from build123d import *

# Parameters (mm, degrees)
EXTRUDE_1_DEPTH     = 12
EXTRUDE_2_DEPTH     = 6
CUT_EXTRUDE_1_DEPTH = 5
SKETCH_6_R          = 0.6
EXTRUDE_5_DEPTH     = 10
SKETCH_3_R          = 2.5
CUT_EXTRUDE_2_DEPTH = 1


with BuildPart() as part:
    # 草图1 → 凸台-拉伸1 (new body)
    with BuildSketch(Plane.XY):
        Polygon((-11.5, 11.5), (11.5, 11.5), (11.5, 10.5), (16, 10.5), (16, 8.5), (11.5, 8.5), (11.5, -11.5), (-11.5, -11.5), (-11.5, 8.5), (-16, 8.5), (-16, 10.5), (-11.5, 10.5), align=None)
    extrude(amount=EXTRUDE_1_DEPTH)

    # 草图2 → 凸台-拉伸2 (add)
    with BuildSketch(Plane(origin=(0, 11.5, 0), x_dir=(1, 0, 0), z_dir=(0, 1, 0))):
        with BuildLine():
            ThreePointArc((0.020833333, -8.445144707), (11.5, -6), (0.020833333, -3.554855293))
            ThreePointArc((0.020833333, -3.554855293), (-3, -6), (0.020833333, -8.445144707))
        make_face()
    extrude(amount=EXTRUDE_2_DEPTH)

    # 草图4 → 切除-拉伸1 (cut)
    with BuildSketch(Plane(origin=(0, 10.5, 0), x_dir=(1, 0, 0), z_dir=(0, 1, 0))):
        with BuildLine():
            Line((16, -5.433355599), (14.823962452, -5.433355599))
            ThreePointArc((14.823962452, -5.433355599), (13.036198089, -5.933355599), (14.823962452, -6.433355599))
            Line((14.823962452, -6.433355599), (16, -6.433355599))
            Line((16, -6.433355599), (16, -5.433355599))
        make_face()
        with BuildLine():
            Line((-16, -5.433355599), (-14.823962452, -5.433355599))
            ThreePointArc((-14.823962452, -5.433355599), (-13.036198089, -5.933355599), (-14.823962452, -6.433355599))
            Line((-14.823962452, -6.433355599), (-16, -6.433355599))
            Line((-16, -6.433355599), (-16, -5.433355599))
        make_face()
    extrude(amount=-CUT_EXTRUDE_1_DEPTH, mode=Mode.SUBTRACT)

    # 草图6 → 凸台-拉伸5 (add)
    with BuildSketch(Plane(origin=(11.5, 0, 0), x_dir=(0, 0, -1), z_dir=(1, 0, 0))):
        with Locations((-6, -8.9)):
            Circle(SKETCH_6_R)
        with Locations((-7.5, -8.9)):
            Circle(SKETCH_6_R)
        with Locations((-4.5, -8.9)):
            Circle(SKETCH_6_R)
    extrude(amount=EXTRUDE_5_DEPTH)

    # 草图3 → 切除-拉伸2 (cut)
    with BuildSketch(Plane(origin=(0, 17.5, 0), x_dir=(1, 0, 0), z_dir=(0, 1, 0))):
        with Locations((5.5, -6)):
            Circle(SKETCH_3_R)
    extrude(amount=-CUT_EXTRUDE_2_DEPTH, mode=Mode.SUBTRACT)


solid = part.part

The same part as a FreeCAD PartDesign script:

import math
import FreeCAD as App
import Part
import Sketcher

V = App.Vector


def add_polygon(sketch, points):
    """Adds a closed chain of lines whose ends are joined by coincident constraints."""
    first, n = sketch.GeometryCount, len(points)
    for a, b in zip(points, points[1:] + points[:1]):
        sketch.addGeometry(Part.LineSegment(App.Vector(*a, 0), App.Vector(*b, 0)), False)
    for i in range(n):
        sketch.addConstraint(Sketcher.Constraint("Coincident", first + i, 2, first + (i + 1) % n, 1))

doc = App.newDocument("Part")
params = doc.addObject("Spreadsheet::Sheet", "Params")
for row, (alias, value) in enumerate([
    ("sketch1_width", "23 mm"),
    ("sketch1_height", "1 mm"),
    ("sketch1_height2", "2 mm"),
    ("sketch1_height3", "20 mm"),
    ("sketch1_width2", "4.5 mm"),
    ("pad1_length", "12 mm"),
    ("sketch2_radius", "6 mm"),
    ("sketch2_radius2", "2.5 mm"),
    ("pad2_length", "6 mm"),
    ("sketch3_height", "1 mm"),
    ("pocket1_length", "5 mm"),
    ("sketch4_diameter", "1.2 mm"),
    ("pad3_length", "10 mm"),
    ("sketch5_diameter", "5 mm"),
    ("pocket2_length", "1 mm"),
], start=1):
    params.set(f"A{row}", alias)
    params.set(f"B{row}", "=" + value)
    params.setAlias(f"B{row}", alias)

body = doc.addObject("PartDesign::Body", "Body")

# Sketch on XY plane
sketch1 = body.newObject("Sketcher::SketchObject", "Sketch")
sketch1.AttachmentSupport = (doc.getObject("XY_Plane"), [""])
sketch1.MapMode = "FlatFace"
add_polygon(sketch1, [(11.5, 11.5), (-11.5, 11.5), (-11.5, 10.5), (-16, 10.5), (-16, 8.5), (-11.5, 8.5), (-11.5, -11.5), (11.5, -11.5), (11.5, 8.5), (16, 8.5), (16, 10.5), (11.5, 10.5)])  # lines 0-11
sketch1.addConstraint([
    Sketcher.Constraint("Horizontal", 0),
    Sketcher.Constraint("Vertical", 1),
    Sketcher.Constraint("Horizontal", 2),
    Sketcher.Constraint("Vertical", 3),
    Sketcher.Constraint("Horizontal", 4),
    Sketcher.Constraint("Vertical", 5),
    Sketcher.Constraint("Horizontal", 6),
    Sketcher.Constraint("Vertical", 7),
    Sketcher.Constraint("Horizontal", 8),
    Sketcher.Constraint("Vertical", 9),
    Sketcher.Constraint("Horizontal", 10),
    Sketcher.Constraint("Vertical", 11),
    Sketcher.Constraint("Symmetric", 0, 2, 6, 2, -1, 1),
    Sketcher.Constraint("Symmetric", 4, 2, 7, 2, -2),
    Sketcher.Constraint("Symmetric", 2, 2, 9, 2, -2),
    Sketcher.Constraint("Vertical", 7, 2, 10, 2),
    Sketcher.Constraint("DistanceX", 0, 2, 0, 1, 23.0),
    Sketcher.Constraint("DistanceY", 1, 2, 1, 1, 1.0),
    Sketcher.Constraint("DistanceY", 3, 2, 3, 1, 2.0),
    Sketcher.Constraint("DistanceY", 5, 2, 5, 1, 20.0),
    Sketcher.Constraint("DistanceX", 2, 2, 2, 1, 4.5),
])
sketch1.setExpression("Constraints[28]", "Params.sketch1_width")
sketch1.setExpression("Constraints[29]", "Params.sketch1_height")
sketch1.setExpression("Constraints[30]", "Params.sketch1_height2")
sketch1.setExpression("Constraints[31]", "Params.sketch1_height3")
sketch1.setExpression("Constraints[32]", "Params.sketch1_width2")
pad1 = body.newObject("PartDesign::Pad", "Pad")
pad1.Profile = sketch1
pad1.setExpression("Length", "Params.pad1_length")

# Sketch on XZ plane
sketch2 = body.newObject("Sketcher::SketchObject", "Sketch001")
sketch2.AttachmentSupport = (doc.getObject("XZ_Plane"), [""])
sketch2.MapMode = "FlatFace"
sketch2.AttachmentOffset = App.Placement(V(0, 0, -11.5), App.Rotation())
sketch2.addGeometry([
    Part.ArcOfCircle(Part.Circle(V(5.5, 6, 0), V(0, 0, 1), 6), math.radians(-155.950602), math.radians(155.950602)),
    Part.ArcOfCircle(Part.Circle(V(-0.5, 6, 0), V(0, 0, 1), 2.5), math.radians(77.975301), math.radians(282.024699)),
], False)
sketch2.addConstraint([
    Sketcher.Constraint("Coincident", 0, 1, 1, 2),
    Sketcher.Constraint("Coincident", 1, 1, 0, 2),
    Sketcher.Constraint("Horizontal", 0, 3, 1, 3),
    Sketcher.Constraint("Radius", 0, 6.0),
    Sketcher.Constraint("Radius", 1, 2.5),
    Sketcher.Constraint("DistanceY", -1, 1, 0, 3, 6.0),
    Sketcher.Constraint("DistanceX", 1, 3, 0, 3, 6.0),
    Sketcher.Constraint("DistanceX", -1, 1, 0, 3, 5.5),
])
sketch2.setExpression("Constraints[3]", "Params.sketch2_radius")
sketch2.setExpression("Constraints[4]", "Params.sketch2_radius2")
pad2 = body.newObject("PartDesign::Pad", "Pad001")
pad2.Profile = sketch2
pad2.setExpression("Length", "Params.pad2_length")
pad2.Reversed = True

# Sketch on XZ plane
sketch3 = body.newObject("Sketcher::SketchObject", "Sketch002")
sketch3.AttachmentSupport = (doc.getObject("XZ_Plane"), [""])
sketch3.MapMode = "FlatFace"
sketch3.AttachmentOffset = App.Placement(V(0, 0, -10.5), App.Rotation())
sketch3.addGeometry([
    Part.LineSegment(V(16, 5.433356, 0), V(14.823962, 5.433356, 0)),  # 0
    Part.ArcOfCircle(Part.Circle(V(14, 5.933356, 0), V(0, 0, 1), 0.963802), math.radians(31.250372), math.radians(328.749628)),  # 1
    Part.LineSegment(V(14.823962, 6.433356, 0), V(16, 6.433356, 0)),  # 2
    Part.LineSegment(V(16, 6.433356, 0), V(16, 5.433356, 0)),  # 3
    Part.LineSegment(V(-14.823962, 5.433356, 0), V(-16, 5.433356, 0)),  # 4
    Part.LineSegment(V(-16, 5.433356, 0), V(-16, 6.433356, 0)),  # 5
    Part.LineSegment(V(-16, 6.433356, 0), V(-14.823962, 6.433356, 0)),  # 6
    Part.ArcOfCircle(Part.Circle(V(-14, 5.933356, 0), V(0, 0, 1), 0.963802), math.radians(-148.749628), math.radians(148.749628)),  # 7
], False)
sketch3.addConstraint([
    Sketcher.Constraint("Coincident", 0, 2, 1, 2),
    Sketcher.Constraint("Coincident", 1, 1, 2, 1),
    Sketcher.Constraint("Coincident", 2, 2, 3, 1),
    Sketcher.Constraint("Coincident", 3, 2, 0, 1),
    Sketcher.Constraint("Coincident", 4, 2, 5, 1),
    Sketcher.Constraint("Coincident", 5, 2, 6, 1),
    Sketcher.Constraint("Coincident", 6, 2, 7, 2),
    Sketcher.Constraint("Coincident", 7, 1, 4, 1),
    Sketcher.Constraint("Horizontal", 0),
    Sketcher.Constraint("Horizontal", 2),
    Sketcher.Constraint("Vertical", 3),
    Sketcher.Constraint("Horizontal", 4),
    Sketcher.Constraint("Vertical", 5),
    Sketcher.Constraint("Horizontal", 6),
    Sketcher.Constraint("Equal", 1, 7),
    Sketcher.Constraint("Symmetric", 1, 3, 7, 3, -2),
    Sketcher.Constraint("Symmetric", 3, 2, 4, 2, -2),
    Sketcher.Constraint("Horizontal", 2, 2, 5, 2),
    Sketcher.Constraint("Vertical", 0, 2, 1, 1),
    Sketcher.Constraint("DistanceY", 3, 2, 3, 1, 1.0),
    Sketcher.Constraint("DistanceX", -1, 1, 1, 3, 14.0),
    Sketcher.Constraint("DistanceX", -1, 1, 2, 2, 16.0),
    Sketcher.Constraint("Radius", 1, 0.963802),
    Sketcher.Constraint("DistanceY", -1, 1, 1, 3, 5.933356),
])
sketch3.setExpression("Constraints[19]", "Params.sketch3_height")
pocket1 = body.newObject("PartDesign::Pocket", "Pocket")
pocket1.Profile = sketch3
pocket1.setExpression("Length", "Params.pocket1_length")
pocket1.Reversed = True

# Sketch on YZ plane
sketch4 = body.newObject("Sketcher::SketchObject", "Sketch003")
sketch4.AttachmentSupport = (doc.getObject("YZ_Plane"), [""])
sketch4.MapMode = "FlatFace"
sketch4.AttachmentOffset = App.Placement(V(0, 0, 11.5), App.Rotation())
sketch4.addGeometry([
    Part.Circle(V(-8.9, 6, 0), V(0, 0, 1), 0.6),
    Part.Circle(V(-8.9, 7.5, 0), V(0, 0, 1), 0.6),
    Part.Circle(V(-8.9, 4.5, 0), V(0, 0, 1), 0.6),
], False)
sketch4.addConstraint([
    Sketcher.Constraint("Equal", 0, 1),
    Sketcher.Constraint("Equal", 1, 2),
    Sketcher.Constraint("Vertical", 0, 3, 1, 3),
    Sketcher.Constraint("Vertical", 1, 3, 2, 3),
    Sketcher.Constraint("Diameter", 0, 1.2),
    Sketcher.Constraint("DistanceY", -1, 1, 0, 3, 6.0),
    Sketcher.Constraint("DistanceY", 2, 3, 1, 3, 3.0),
    Sketcher.Constraint("DistanceX", 0, 3, -1, 1, 8.9),
    Sketcher.Constraint("DistanceY", -1, 1, 1, 3, 7.5),
])
sketch4.setExpression("Constraints[4]", "Params.sketch4_diameter")
pad3 = body.newObject("PartDesign::Pad", "Pad002")
pad3.Profile = sketch4
pad3.setExpression("Length", "Params.pad3_length")

# Sketch on XZ plane
sketch5 = body.newObject("Sketcher::SketchObject", "Sketch004")
sketch5.AttachmentSupport = (doc.getObject("XZ_Plane"), [""])
sketch5.MapMode = "FlatFace"
sketch5.AttachmentOffset = App.Placement(V(0, 0, -17.5), App.Rotation())
sketch5.addGeometry(Part.Circle(V(5.5, 6, 0), V(0, 0, 1), 2.5), False)
sketch5.addConstraint([
    Sketcher.Constraint("Diameter", 0, 5.0),
    Sketcher.Constraint("DistanceY", -1, 1, 0, 3, 6.0),
    Sketcher.Constraint("DistanceX", -1, 1, 0, 3, 5.5),
])
sketch5.setExpression("Constraints[0]", "Params.sketch5_diameter")
pocket2 = body.newObject("PartDesign::Pocket", "Pocket001")
pocket2.Profile = sketch5
pocket2.setExpression("Length", "Params.pocket2_length")
pocket2.Reversed = True

doc.recompute()
